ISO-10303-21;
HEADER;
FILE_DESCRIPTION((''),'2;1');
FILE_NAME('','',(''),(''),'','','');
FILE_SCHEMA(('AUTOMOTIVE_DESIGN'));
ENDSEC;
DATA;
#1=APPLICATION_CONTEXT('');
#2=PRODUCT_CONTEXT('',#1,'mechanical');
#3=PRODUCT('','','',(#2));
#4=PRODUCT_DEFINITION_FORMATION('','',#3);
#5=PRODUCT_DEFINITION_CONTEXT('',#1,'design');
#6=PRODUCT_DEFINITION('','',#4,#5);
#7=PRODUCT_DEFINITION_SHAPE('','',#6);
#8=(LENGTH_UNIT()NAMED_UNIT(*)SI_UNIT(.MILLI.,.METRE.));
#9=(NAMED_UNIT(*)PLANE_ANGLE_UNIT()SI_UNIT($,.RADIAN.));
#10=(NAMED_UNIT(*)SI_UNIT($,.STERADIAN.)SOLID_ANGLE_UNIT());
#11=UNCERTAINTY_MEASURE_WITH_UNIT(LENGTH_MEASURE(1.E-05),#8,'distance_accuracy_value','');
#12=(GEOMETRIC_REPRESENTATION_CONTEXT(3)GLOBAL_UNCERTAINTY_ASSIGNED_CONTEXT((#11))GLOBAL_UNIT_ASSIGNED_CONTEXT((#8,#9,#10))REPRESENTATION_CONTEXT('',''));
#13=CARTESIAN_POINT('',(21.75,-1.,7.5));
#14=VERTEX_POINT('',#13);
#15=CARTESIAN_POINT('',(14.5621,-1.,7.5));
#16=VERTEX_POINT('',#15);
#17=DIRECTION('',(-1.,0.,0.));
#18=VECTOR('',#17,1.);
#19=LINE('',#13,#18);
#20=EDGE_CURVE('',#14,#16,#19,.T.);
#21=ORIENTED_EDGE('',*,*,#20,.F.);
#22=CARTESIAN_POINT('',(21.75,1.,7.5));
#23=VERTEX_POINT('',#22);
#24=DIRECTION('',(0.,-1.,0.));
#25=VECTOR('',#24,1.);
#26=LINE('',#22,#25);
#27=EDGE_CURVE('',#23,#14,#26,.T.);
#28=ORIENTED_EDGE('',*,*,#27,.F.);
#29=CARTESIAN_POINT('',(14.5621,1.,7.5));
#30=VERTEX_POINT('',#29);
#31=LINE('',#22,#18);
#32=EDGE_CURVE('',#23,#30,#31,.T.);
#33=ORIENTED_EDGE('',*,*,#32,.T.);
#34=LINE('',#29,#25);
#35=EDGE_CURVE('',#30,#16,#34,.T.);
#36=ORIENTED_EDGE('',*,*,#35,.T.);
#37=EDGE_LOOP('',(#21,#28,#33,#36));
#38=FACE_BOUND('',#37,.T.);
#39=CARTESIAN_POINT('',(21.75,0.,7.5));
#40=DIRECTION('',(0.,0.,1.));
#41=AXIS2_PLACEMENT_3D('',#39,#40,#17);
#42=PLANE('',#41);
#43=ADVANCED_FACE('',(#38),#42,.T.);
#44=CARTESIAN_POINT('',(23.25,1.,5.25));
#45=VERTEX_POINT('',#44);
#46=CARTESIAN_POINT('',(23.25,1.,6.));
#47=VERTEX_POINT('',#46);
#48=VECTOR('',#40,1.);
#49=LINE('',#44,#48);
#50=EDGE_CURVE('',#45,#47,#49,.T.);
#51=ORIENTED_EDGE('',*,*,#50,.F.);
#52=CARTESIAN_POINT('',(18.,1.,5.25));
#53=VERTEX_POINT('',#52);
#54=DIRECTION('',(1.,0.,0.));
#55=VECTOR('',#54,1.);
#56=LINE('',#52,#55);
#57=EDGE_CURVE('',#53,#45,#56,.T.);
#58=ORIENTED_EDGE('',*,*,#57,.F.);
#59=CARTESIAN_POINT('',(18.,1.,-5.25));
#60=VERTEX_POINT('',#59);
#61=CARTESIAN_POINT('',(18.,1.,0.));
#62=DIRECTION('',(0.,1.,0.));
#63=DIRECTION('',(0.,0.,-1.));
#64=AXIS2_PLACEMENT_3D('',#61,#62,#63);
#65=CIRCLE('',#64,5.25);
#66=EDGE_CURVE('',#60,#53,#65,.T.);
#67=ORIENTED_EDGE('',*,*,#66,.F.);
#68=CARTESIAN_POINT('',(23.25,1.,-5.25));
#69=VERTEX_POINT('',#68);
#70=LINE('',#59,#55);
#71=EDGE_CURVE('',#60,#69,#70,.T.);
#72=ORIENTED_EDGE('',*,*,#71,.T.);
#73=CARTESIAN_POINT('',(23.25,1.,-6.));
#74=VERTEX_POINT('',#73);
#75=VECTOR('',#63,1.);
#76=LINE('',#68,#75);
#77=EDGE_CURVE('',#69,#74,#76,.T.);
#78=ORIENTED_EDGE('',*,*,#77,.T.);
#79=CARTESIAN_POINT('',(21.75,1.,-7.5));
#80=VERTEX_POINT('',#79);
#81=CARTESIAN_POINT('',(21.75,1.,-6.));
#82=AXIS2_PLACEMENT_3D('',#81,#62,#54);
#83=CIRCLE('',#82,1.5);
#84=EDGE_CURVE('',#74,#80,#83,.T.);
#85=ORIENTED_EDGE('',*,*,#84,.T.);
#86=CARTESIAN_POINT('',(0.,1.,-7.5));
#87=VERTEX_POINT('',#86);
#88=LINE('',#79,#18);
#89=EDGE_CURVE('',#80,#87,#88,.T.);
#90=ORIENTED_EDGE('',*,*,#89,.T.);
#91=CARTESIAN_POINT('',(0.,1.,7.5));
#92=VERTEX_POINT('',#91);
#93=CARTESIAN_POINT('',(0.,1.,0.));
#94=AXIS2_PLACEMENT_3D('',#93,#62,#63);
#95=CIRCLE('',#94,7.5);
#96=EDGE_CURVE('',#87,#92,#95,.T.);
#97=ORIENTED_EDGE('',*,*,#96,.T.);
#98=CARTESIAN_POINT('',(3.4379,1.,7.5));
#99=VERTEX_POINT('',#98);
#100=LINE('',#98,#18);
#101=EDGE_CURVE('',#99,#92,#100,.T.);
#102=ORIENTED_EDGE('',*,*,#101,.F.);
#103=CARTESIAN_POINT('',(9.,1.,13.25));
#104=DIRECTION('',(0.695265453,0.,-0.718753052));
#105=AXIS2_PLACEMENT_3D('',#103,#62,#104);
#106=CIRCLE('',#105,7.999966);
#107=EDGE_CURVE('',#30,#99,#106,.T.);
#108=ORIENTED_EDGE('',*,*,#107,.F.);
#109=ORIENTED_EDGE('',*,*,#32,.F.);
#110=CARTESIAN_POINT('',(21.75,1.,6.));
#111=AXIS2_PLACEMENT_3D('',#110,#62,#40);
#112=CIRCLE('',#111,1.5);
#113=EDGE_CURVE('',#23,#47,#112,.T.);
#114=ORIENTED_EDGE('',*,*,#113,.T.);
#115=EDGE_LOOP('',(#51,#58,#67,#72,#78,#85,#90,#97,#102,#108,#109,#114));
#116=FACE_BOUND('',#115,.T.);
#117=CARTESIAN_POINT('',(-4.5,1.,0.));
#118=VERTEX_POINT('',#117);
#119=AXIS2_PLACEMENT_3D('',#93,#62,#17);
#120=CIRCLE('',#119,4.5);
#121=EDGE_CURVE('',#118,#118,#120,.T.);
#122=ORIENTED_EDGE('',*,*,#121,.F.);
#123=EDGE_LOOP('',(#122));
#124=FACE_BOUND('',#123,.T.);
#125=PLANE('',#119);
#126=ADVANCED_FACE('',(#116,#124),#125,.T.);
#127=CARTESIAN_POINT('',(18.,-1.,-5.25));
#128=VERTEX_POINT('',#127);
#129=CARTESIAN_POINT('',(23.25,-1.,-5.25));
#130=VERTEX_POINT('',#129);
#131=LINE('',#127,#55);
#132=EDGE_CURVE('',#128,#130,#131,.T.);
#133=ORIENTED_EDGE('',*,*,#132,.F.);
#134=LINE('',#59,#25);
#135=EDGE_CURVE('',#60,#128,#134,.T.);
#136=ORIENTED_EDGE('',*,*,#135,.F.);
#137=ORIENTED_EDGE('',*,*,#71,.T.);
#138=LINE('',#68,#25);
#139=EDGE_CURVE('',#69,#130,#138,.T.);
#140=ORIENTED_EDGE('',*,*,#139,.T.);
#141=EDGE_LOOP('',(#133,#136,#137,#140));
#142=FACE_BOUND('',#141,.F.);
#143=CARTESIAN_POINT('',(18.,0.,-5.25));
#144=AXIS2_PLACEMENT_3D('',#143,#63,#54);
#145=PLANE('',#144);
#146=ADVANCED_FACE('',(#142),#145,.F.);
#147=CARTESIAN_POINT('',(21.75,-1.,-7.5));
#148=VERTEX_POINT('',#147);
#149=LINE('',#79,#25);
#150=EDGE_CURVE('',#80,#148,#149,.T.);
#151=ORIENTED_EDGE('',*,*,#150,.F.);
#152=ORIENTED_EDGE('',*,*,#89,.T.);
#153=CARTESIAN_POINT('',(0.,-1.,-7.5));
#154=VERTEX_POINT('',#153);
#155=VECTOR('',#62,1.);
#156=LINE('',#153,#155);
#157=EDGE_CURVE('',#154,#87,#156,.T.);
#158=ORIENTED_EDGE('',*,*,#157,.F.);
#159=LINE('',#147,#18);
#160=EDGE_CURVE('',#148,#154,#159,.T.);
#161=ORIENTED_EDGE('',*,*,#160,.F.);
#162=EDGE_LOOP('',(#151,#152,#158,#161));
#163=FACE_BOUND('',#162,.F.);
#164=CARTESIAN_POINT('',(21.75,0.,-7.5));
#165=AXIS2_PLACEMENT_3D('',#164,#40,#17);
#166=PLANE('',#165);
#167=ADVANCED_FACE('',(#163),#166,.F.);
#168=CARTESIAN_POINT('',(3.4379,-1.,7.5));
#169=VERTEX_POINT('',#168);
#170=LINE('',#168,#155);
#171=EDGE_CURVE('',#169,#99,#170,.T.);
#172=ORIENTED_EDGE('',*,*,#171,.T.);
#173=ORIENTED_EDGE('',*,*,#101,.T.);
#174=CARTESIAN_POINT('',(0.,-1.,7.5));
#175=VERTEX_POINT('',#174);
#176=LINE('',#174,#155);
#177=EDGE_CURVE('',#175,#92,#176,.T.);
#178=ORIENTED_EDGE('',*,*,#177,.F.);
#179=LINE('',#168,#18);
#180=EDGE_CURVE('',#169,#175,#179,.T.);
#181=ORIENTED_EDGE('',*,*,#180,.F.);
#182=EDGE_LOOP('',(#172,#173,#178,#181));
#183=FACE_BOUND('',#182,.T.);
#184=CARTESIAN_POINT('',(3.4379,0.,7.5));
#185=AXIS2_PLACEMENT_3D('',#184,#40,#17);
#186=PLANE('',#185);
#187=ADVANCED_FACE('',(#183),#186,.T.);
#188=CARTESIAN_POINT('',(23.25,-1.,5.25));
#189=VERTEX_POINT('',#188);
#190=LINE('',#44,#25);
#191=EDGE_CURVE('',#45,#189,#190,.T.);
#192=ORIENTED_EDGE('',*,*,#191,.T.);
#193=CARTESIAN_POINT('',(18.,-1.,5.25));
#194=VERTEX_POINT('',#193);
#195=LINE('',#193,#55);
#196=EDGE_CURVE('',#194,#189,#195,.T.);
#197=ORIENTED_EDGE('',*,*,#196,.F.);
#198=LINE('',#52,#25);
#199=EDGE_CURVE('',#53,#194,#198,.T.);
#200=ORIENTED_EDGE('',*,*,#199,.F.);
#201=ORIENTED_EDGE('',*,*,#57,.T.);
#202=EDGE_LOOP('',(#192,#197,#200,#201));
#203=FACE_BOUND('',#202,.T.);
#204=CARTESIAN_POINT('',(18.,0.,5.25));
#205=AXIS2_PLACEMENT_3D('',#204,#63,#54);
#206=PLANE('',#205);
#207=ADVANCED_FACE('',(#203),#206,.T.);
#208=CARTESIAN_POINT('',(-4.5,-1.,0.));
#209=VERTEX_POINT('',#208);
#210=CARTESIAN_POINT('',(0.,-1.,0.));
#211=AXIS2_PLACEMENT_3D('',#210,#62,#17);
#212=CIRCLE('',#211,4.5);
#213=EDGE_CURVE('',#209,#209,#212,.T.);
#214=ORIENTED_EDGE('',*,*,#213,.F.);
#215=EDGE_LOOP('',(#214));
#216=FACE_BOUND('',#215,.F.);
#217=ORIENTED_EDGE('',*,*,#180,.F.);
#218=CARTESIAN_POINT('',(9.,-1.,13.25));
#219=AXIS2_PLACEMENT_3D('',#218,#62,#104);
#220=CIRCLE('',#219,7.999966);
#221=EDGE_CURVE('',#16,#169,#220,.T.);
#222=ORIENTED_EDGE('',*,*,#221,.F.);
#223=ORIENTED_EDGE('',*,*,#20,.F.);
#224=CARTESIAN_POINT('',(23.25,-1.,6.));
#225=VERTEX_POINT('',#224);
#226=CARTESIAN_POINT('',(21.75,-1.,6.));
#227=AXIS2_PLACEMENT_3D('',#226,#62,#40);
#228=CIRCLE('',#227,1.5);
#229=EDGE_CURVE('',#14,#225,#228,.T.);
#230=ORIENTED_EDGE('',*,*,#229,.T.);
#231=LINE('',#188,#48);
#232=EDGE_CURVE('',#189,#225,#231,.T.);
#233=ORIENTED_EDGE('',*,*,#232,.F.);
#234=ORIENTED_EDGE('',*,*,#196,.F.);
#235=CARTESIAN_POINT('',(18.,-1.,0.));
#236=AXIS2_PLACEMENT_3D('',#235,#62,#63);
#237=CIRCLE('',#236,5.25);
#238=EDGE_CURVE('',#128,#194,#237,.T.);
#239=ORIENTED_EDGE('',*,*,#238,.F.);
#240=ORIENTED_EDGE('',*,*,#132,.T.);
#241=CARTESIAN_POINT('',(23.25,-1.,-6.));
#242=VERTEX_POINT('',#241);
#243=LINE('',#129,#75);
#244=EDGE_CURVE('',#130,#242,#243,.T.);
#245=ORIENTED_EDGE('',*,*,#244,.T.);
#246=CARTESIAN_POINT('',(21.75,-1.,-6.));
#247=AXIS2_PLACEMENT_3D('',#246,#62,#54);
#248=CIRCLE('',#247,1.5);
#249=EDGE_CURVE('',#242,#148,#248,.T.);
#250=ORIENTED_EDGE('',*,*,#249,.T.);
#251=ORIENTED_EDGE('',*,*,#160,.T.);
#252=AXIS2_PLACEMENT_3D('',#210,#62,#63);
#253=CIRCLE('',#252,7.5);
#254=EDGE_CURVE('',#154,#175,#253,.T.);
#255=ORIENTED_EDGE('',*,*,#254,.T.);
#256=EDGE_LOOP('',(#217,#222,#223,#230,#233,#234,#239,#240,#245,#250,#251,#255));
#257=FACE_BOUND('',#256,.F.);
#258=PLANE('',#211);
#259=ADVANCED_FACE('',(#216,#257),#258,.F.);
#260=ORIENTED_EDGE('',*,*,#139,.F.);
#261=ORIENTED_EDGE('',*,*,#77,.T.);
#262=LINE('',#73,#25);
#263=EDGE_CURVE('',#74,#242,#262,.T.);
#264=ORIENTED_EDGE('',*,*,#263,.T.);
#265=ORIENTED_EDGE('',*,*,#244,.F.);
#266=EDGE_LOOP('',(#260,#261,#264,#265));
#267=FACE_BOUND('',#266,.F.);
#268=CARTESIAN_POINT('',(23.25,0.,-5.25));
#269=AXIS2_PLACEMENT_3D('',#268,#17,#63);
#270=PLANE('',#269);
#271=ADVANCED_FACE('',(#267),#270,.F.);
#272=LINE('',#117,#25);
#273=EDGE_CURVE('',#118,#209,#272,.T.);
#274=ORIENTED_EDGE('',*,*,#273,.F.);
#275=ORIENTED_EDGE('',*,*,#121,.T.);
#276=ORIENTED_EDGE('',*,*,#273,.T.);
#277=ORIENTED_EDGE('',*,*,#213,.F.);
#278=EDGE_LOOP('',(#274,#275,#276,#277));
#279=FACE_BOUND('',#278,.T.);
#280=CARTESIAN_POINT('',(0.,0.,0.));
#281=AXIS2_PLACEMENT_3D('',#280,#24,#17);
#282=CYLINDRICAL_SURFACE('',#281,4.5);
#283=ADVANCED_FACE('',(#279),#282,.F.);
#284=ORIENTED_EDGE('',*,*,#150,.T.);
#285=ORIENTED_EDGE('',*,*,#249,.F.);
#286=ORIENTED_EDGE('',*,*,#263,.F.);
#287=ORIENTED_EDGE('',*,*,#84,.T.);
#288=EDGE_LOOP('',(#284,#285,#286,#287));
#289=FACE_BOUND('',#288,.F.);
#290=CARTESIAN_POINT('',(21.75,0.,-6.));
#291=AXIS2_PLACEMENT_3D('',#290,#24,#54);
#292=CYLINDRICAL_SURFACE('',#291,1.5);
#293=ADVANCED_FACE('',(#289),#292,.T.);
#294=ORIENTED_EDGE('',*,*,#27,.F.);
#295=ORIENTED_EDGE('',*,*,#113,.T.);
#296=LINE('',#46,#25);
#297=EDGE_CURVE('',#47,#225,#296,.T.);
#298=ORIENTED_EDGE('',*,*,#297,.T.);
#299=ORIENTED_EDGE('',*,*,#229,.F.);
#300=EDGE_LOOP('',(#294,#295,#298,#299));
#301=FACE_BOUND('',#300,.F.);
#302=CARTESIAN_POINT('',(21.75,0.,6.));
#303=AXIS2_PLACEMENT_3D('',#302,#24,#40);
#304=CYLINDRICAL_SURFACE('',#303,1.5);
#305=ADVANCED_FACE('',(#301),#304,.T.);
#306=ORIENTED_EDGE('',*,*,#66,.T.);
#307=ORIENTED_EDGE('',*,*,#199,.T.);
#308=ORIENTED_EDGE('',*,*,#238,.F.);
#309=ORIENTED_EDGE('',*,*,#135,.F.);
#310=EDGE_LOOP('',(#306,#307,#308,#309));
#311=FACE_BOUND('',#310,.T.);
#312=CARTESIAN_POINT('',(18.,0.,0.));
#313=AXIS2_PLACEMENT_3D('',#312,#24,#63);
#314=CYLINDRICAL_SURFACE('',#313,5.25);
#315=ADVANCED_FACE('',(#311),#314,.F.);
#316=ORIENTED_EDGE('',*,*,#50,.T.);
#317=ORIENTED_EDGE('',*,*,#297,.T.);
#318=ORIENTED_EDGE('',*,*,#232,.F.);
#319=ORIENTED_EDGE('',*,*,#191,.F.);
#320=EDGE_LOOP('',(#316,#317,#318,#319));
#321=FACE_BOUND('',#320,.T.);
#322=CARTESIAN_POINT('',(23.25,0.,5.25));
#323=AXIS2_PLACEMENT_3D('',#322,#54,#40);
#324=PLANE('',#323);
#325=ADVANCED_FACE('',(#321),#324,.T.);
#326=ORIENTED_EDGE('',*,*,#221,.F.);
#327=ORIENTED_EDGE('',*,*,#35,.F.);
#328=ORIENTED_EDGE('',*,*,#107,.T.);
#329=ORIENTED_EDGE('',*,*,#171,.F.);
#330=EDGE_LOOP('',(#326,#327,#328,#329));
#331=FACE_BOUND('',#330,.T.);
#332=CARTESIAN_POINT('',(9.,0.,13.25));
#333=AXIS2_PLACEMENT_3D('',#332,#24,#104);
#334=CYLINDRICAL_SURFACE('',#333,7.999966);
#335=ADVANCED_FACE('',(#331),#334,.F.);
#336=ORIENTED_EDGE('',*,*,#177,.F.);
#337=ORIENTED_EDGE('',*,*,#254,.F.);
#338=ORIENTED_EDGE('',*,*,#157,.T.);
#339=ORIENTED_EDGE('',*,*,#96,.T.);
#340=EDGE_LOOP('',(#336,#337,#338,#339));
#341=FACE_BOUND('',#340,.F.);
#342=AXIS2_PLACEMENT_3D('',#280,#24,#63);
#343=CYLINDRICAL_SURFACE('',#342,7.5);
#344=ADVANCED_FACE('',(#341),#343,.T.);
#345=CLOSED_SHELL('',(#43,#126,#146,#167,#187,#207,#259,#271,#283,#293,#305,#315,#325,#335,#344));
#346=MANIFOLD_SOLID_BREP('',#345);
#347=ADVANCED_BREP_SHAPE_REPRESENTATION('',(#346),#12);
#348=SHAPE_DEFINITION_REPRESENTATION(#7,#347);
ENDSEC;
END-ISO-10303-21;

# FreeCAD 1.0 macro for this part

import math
import FreeCAD as App
import Part
import Sketcher
from FreeCAD import Vector
Q = App.Units.Quantity

doc = App.newDocument("Part")
body = doc.addObject("PartDesign::Body", "Body")

# Sketch on XZ plane
sketch1 = doc.addObject("Sketcher::SketchObject", "Sketch")
body.addObject(sketch1)
sketch1.AttachmentSupport = (doc.XZ_Plane, [""])
sketch1.MapMode = "FlatFace"
sketch1.addGeometry([
    Part.LineSegment(Vector(21.8, -7.5, 0), Vector(0, -7.5, 0)),  # 0
    Part.ArcOfCircle(Part.Circle(Vector(0, 0, 0), Vector(0, 0, 1), 7.5), math.radians(90), math.radians(270)),  # 1
    Part.LineSegment(Vector(0, 7.5, 0), Vector(3.4, 7.5, 0)),  # 2
    Part.ArcOfCircle(Part.Circle(Vector(9, 13.2, 0), Vector(0, 0, 1), 8), math.radians(-134), math.radians(-46)),  # 3
    Part.LineSegment(Vector(14.6, 7.5, 0), Vector(21.8, 7.5, 0)),  # 4
    Part.ArcOfCircle(Part.Circle(Vector(21.8, 6, 0), Vector(0, 0, 1), 1.5), math.radians(0), math.radians(90)),  # 5
    Part.LineSegment(Vector(23.2, 6, 0), Vector(23.2, 5.2, 0)),  # 6
    Part.LineSegment(Vector(23.2, 5.2, 0), Vector(18, 5.2, 0)),  # 7
    Part.ArcOfCircle(Part.Circle(Vector(18, 0, 0), Vector(0, 0, 1), 5.2), math.radians(90), math.radians(270)),  # 8
    Part.LineSegment(Vector(18, -5.2, 0), Vector(23.2, -5.2, 0)),  # 9
    Part.LineSegment(Vector(23.2, -5.2, 0), Vector(23.2, -6, 0)),  # 10
    Part.ArcOfCircle(Part.Circle(Vector(21.8, -6, 0), Vector(0, 0, 1), 1.5), math.radians(-90), math.radians(0)),  # 11
    Part.Circle(Vector(0, 0, 0), Vector(0, 0, 1), 4.5),  # 12
], False)
sketch1.addConstraint([
    Sketcher.Constraint("Tangent", 0, 2, 1, 2),
    Sketcher.Constraint("Tangent", 1, 1, 2, 1),
    Sketcher.Constraint("Coincident", 2, 2, 3, 1),
    Sketcher.Constraint("Coincident", 3, 2, 4, 1),
    Sketcher.Constraint("Tangent", 4, 2, 5, 2),
    Sketcher.Constraint("Tangent", 5, 1, 6, 1),
    Sketcher.Constraint("Coincident", 6, 2, 7, 1),
    Sketcher.Constraint("Tangent", 7, 2, 8, 1),
    Sketcher.Constraint("Tangent", 8, 2, 9, 1),
    Sketcher.Constraint("Coincident", 9, 2, 10, 1),
    Sketcher.Constraint("Tangent", 10, 2, 11, 2),
    Sketcher.Constraint("Tangent", 11, 1, 0, 1),
    Sketcher.Constraint("Horizontal", 0),
    Sketcher.Constraint("Horizontal", 2),
    Sketcher.Constraint("Horizontal", 4),
    Sketcher.Constraint("Vertical", 6),
    Sketcher.Constraint("Horizontal", 7),
    Sketcher.Constraint("Horizontal", 9),
    Sketcher.Constraint("Vertical", 10),
    Sketcher.Constraint("Coincident", 1, 3, -1, 1),
    Sketcher.Constraint("Coincident", 12, 3, -1, 1),
    Sketcher.Constraint("Equal", 5, 11),
    Sketcher.Constraint("Symmetric", 5, 3, 11, 3, -1),
    Sketcher.Constraint("PointOnObject", 8, 3, -1),
    Sketcher.Constraint("Diameter", 12, Q("9 mm")),
    Sketcher.Constraint("Radius", 3, Q("8 mm")),
    Sketcher.Constraint("Radius", 1, Q("7.5 mm")),
    Sketcher.Constraint("Radius", 5, Q("1.5 mm")),
    Sketcher.Constraint("Radius", 8, Q("5.25 mm")),
    Sketcher.Constraint("DistanceX", -1, 1, 3, 3, Q("9 mm")),
    Sketcher.Constraint("DistanceX", -1, 1, 8, 3, Q("18 mm")),
    Sketcher.Constraint("DistanceX", 0, 2, 0, 1, Q("21.75 mm")),
    Sketcher.Constraint("DistanceX", 2, 1, 2, 2, Q("3.438 mm")),
])
pad1 = doc.addObject("PartDesign::Pad", "Pad")
body.addObject(pad1)
pad1.Profile = sketch1
pad1.Length = 2
pad1.Midplane = True

doc.recompute()
